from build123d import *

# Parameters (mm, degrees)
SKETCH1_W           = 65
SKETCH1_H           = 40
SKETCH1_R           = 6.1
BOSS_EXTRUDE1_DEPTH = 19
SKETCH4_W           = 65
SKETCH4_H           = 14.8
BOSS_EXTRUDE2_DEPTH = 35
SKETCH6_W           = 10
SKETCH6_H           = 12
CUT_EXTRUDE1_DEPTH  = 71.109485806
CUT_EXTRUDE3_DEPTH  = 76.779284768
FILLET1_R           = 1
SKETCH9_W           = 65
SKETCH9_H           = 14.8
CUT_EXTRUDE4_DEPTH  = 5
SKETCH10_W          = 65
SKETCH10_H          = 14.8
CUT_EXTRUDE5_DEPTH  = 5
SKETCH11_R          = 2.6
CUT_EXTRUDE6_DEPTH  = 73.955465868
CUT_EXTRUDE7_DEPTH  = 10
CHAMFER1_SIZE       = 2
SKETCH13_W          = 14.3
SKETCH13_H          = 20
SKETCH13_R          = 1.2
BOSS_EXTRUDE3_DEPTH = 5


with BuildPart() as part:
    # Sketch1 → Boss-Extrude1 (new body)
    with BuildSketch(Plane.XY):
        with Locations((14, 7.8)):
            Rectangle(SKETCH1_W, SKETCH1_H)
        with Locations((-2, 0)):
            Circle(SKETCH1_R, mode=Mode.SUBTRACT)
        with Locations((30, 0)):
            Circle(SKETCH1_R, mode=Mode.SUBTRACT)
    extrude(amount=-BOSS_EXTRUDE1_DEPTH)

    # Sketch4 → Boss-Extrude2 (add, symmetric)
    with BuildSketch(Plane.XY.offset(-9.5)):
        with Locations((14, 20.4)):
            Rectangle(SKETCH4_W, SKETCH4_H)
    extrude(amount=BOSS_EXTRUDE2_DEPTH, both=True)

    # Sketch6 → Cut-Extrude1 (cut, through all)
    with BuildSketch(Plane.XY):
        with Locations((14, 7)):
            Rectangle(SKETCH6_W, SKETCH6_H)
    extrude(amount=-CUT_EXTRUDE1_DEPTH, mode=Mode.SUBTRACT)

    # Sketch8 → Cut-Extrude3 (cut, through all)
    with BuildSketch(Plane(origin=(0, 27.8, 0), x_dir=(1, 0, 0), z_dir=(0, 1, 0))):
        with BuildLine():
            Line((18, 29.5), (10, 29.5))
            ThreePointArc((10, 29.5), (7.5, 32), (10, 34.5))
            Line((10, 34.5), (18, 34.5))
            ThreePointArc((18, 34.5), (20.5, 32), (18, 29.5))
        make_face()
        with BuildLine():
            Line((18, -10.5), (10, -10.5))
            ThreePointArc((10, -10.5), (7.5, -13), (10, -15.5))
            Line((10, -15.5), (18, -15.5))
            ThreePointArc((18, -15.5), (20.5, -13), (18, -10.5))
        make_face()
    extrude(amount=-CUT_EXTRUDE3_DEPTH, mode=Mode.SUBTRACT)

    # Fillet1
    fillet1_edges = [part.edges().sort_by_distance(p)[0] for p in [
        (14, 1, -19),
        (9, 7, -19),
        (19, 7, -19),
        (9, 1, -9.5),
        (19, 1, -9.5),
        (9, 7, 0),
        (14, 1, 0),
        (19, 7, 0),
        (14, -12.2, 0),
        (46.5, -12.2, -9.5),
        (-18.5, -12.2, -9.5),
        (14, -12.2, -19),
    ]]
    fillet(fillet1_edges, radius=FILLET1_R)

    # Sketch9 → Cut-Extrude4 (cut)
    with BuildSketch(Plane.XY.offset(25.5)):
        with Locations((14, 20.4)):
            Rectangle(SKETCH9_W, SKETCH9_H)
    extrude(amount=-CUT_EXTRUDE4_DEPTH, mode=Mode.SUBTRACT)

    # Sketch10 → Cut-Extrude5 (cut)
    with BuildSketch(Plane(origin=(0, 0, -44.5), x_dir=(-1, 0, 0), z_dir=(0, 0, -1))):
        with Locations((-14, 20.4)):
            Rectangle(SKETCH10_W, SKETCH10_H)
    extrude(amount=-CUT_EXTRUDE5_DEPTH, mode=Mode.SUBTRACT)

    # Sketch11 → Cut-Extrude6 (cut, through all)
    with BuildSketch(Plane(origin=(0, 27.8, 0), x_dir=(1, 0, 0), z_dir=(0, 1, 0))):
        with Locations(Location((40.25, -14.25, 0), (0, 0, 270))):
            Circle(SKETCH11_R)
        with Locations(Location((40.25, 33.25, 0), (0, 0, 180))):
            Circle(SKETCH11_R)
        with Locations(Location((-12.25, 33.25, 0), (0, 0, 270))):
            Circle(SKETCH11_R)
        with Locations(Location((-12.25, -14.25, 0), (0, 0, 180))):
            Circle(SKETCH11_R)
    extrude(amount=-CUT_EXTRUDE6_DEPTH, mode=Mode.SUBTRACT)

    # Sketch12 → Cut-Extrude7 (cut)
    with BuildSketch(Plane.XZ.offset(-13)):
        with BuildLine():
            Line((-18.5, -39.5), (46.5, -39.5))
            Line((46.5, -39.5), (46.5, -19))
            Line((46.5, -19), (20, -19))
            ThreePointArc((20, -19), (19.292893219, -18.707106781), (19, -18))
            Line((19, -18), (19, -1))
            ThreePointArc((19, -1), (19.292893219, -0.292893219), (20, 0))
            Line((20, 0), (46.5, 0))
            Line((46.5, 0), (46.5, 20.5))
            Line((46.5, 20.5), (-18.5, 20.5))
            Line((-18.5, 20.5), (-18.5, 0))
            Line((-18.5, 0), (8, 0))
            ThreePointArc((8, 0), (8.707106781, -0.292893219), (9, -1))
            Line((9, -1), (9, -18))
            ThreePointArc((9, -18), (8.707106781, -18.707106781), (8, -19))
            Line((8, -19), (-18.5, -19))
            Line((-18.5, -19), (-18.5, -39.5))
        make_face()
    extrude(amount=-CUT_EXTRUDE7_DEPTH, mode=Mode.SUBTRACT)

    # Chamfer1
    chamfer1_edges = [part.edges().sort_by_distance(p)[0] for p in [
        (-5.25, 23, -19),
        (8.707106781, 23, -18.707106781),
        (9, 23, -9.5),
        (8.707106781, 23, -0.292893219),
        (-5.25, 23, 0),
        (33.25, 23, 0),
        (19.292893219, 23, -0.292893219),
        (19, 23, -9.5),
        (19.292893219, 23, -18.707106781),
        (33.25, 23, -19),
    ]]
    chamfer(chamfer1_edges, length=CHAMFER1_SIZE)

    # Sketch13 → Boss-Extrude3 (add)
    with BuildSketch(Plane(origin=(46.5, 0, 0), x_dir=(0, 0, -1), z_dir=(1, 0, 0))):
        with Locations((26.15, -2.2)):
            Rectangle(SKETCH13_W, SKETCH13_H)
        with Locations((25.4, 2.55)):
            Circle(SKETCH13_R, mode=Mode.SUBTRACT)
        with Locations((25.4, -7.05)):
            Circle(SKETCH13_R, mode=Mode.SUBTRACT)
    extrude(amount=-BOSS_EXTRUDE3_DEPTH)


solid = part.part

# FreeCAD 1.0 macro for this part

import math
import FreeCAD as App
import Part
import Sketcher


def edges_at(feature, points):
    """Names of the edges that pass closest to the given points."""
    edges = feature.Shape.Edges
    near = lambda p: min(range(len(edges)), key=lambda i: edges[i].distToShape(Part.Vertex(*p))[0])
    return sorted({f"Edge{near(p) + 1}" for p in points})


def add_polygon(sketch, points):
    """Adds a closed chain of lines whose ends are joined by coincident constraints."""
    first, n = sketch.GeometryCount, len(points)
    for a, b in zip(points, points[1:] + points[:1]):
        sketch.addGeometry(Part.LineSegment(App.Vector(*a, 0), App.Vector(*b, 0)), False)
    for i in range(n):
        sketch.addConstraint(Sketcher.Constraint("Coincident", first + i, 2, first + (i + 1) % n, 1))

doc = App.newDocument("Part")
body = doc.addObject("PartDesign::Body", "Body")

# Sketch on XY plane
sketch1 = body.newObject("Sketcher::SketchObject", "Sketch")
sketch1.AttachmentSupport = (doc.getObject("XY_Plane"), [""])
sketch1.MapMode = "FlatFace"
add_polygon(sketch1, [(-18.5, 27.8), (-18.5, -12.2), (46.5, -12.2), (46.5, 27.8)])  # lines 0-3
sketch1.addGeometry(Part.Circle(App.Vector(-2, 0, 0), App.Vector(0, 0, 1), 6.1), False)  # 4
sketch1.addGeometry(Part.Circle(App.Vector(30, 0, 0), App.Vector(0, 0, 1), 6.1), False)  # 5
sketch1.addConstraint(Sketcher.Constraint("Vertical", 0))
sketch1.addConstraint(Sketcher.Constraint("Horizontal", 1))
sketch1.addConstraint(Sketcher.Constraint("Vertical", 2))
sketch1.addConstraint(Sketcher.Constraint("Horizontal", 3))
sketch1.addConstraint(Sketcher.Constraint("Equal", 4, 5))
sketch1.addConstraint(Sketcher.Constraint("PointOnObject", 4, 3, -1))
sketch1.addConstraint(Sketcher.Constraint("PointOnObject", 5, 3, -1))
sketch1.addConstraint(Sketcher.Constraint("Diameter", 4, 12.2))
sketch1.addConstraint(Sketcher.Constraint("DistanceX", 1, 1, 1, 2, 65.0))
sketch1.addConstraint(Sketcher.Constraint("DistanceY", 0, 2, 0, 1, 40.0))
sketch1.addConstraint(Sketcher.Constraint("DistanceX", 4, 3, -1, 1, 2.0))
sketch1.addConstraint(Sketcher.Constraint("DistanceX", -1, 1, 5, 3, 30.0))
sketch1.addConstraint(Sketcher.Constraint("DistanceX", 0, 2, -1, 1, 18.5))
sketch1.addConstraint(Sketcher.Constraint("DistanceY", 0, 2, -1, 1, 12.2))
pad1 = body.newObject("PartDesign::Pad", "Pad")
pad1.Profile = sketch1
pad1.Length = 19
pad1.Reversed = True

# Sketch on XY plane
sketch2 = body.newObject("Sketcher::SketchObject", "Sketch001")
sketch2.AttachmentSupport = (doc.getObject("XY_Plane"), [""])
sketch2.MapMode = "FlatFace"
sketch2.AttachmentOffset = App.Placement(App.Vector(0, 0, -9.5), App.Rotation())
add_polygon(sketch2, [(-18.5, 27.8), (-18.5, 13), (46.5, 13), (46.5, 27.8)])  # lines 0-3
sketch2.addConstraint(Sketcher.Constraint("Vertical", 0))
sketch2.addConstraint(Sketcher.Constraint("Horizontal", 1))
sketch2.addConstraint(Sketcher.Constraint("Vertical", 2))
sketch2.addConstraint(Sketcher.Constraint("Horizontal", 3))
sketch2.addConstraint(Sketcher.Constraint("DistanceX", 1, 1, 1, 2, 65.0))
sketch2.addConstraint(Sketcher.Constraint("DistanceY", 0, 2, 0, 1, 14.8))
sketch2.addConstraint(Sketcher.Constraint("DistanceY", -1, 1, 0, 2, 13.0))
sketch2.addConstraint(Sketcher.Constraint("DistanceX", 0, 2, -1, 1, 18.5))
pad2 = body.newObject("PartDesign::Pad", "Pad001")
pad2.Profile = sketch2
pad2.Length = 70
pad2.Midplane = True

# Sketch on XY plane
sketch3 = body.newObject("Sketcher::SketchObject", "Sketch002")
sketch3.AttachmentSupport = (doc.getObject("XY_Plane"), [""])
sketch3.MapMode = "FlatFace"
add_polygon(sketch3, [(9, 13), (9, 1), (19, 1), (19, 13)])  # lines 0-3
sketch3.addConstraint(Sketcher.Constraint("Vertical", 0))
sketch3.addConstraint(Sketcher.Constraint("Horizontal", 1))
sketch3.addConstraint(Sketcher.Constraint("Vertical", 2))
sketch3.addConstraint(Sketcher.Constraint("Horizontal", 3))
sketch3.addConstraint(Sketcher.Constraint("DistanceX", 1, 1, 1, 2, 10.0))
sketch3.addConstraint(Sketcher.Constraint("DistanceY", 0, 2, 0, 1, 12.0))
sketch3.addConstraint(Sketcher.Constraint("DistanceX", -1, 1, 0, 2, 9.0))
sketch3.addConstraint(Sketcher.Constraint("DistanceY", -1, 1, 0, 2, 1.0))
pocket1 = body.newObject("PartDesign::Pocket", "Pocket")
pocket1.Profile = sketch3
pocket1.Type = "ThroughAll"

# Sketch on XZ plane
sketch4 = body.newObject("Sketcher::SketchObject", "Sketch003")
sketch4.AttachmentSupport = (doc.getObject("XZ_Plane"), [""])
sketch4.MapMode = "FlatFace"
sketch4.AttachmentOffset = App.Placement(App.Vector(0, 0, -27.8), App.Rotation())
sketch4.addGeometry(Part.LineSegment(App.Vector(10, -29.5, 0), App.Vector(18, -29.5, 0)), False)
sketch4.addGeometry(Part.ArcOfCircle(Part.Circle(App.Vector(18, -32, 0), App.Vector(0, 0, 1), 2.5), math.radians(-90), math.radians(90)), False)
sketch4.addGeometry(Part.LineSegment(App.Vector(18, -34.5, 0), App.Vector(10, -34.5, 0)), False)
sketch4.addGeometry(Part.ArcOfCircle(Part.Circle(App.Vector(10, -32, 0), App.Vector(0, 0, 1), 2.5), math.radians(90), math.radians(270)), False)
sketch4.addGeometry(Part.LineSegment(App.Vector(18, 10.5, 0), App.Vector(10, 10.5, 0)), False)
sketch4.addGeometry(Part.ArcOfCircle(Part.Circle(App.Vector(10, 13, 0), App.Vector(0, 0, 1), 2.5), math.radians(90), math.radians(270)), False)
sketch4.addGeometry(Part.LineSegment(App.Vector(10, 15.5, 0), App.Vector(18, 15.5, 0)), False)
sketch4.addGeometry(Part.ArcOfCircle(Part.Circle(App.Vector(18, 13, 0), App.Vector(0, 0, 1), 2.5), math.radians(-90), math.radians(90)), False)
sketch4.addConstraint(Sketcher.Constraint("Tangent", 0, 2, 1, 2))
sketch4.addConstraint(Sketcher.Constraint("Tangent", 1, 1, 2, 1))
sketch4.addConstraint(Sketcher.Constraint("Tangent", 2, 2, 3, 2))
sketch4.addConstraint(Sketcher.Constraint("Tangent", 3, 1, 0, 1))
sketch4.addConstraint(Sketcher.Constraint("Tangent", 4, 2, 5, 2))
sketch4.addConstraint(Sketcher.Constraint("Tangent", 5, 1, 6, 1))
sketch4.addConstraint(Sketcher.Constraint("Tangent", 6, 2, 7, 2))
sketch4.addConstraint(Sketcher.Constraint("Tangent", 7, 1, 4, 1))
sketch4.addConstraint(Sketcher.Constraint("Horizontal", 0))
sketch4.addConstraint(Sketcher.Constraint("Horizontal", 2))
sketch4.addConstraint(Sketcher.Constraint("Horizontal", 4))
sketch4.addConstraint(Sketcher.Constraint("Horizontal", 6))
sketch4.addConstraint(Sketcher.Constraint("Equal", 3, 5))
sketch4.addConstraint(Sketcher.Constraint("Vertical", 3, 3, 5, 3))
sketch4.addConstraint(Sketcher.Constraint("Vertical", 1, 3, 7, 3))
sketch4.addConstraint(Sketcher.Constraint("Radius", 1, 2.5))
sketch4.addConstraint(Sketcher.Constraint("DistanceX", 0, 1, 0, 2, 8.0))
sketch4.addConstraint(Sketcher.Constraint("DistanceX", -1, 1, 1, 3, 18.0))
sketch4.addConstraint(Sketcher.Constraint("DistanceY", 1, 3, -1, 1, 32.0))
sketch4.addConstraint(Sketcher.Constraint("DistanceY", -1, 1, 5, 3, 13.0))
pocket2 = body.newObject("PartDesign::Pocket", "Pocket001")
pocket2.Profile = sketch4
pocket2.Type = "ThroughAll"
pocket2.Reversed = True
doc.recompute()

fillet = body.newObject("PartDesign::Fillet", "Fillet")
fillet.Base = (pocket2, edges_at(pocket2, [
    (14, 1, -19),
    (9, 7, -19),
    (19, 7, -19),
    (9, 1, -9.5),
    (19, 1, -9.5),
    (9, 7, 0),
    (14, 1, 0),
    (19, 7, 0),
    (14, -12.2, 0),
    (46.5, -12.2, -9.5),
    (-18.5, -12.2, -9.5),
    (14, -12.2, -19),
]))
fillet.Radius = 1

# Sketch on XY plane
sketch5 = body.newObject("Sketcher::SketchObject", "Sketch004")
sketch5.AttachmentSupport = (doc.getObject("XY_Plane"), [""])
sketch5.MapMode = "FlatFace"
sketch5.AttachmentOffset = App.Placement(App.Vector(0, 0, 25.5), App.Rotation())
add_polygon(sketch5, [(-18.5, 27.8), (-18.5, 13), (46.5, 13), (46.5, 27.8)])  # lines 0-3
sketch5.addConstraint(Sketcher.Constraint("Vertical", 0))
sketch5.addConstraint(Sketcher.Constraint("Horizontal", 1))
sketch5.addConstraint(Sketcher.Constraint("Vertical", 2))
sketch5.addConstraint(Sketcher.Constraint("Horizontal", 3))
sketch5.addConstraint(Sketcher.Constraint("DistanceX", 1, 1, 1, 2, 65.0))
sketch5.addConstraint(Sketcher.Constraint("DistanceY", 0, 2, 0, 1, 14.8))
sketch5.addConstraint(Sketcher.Constraint("DistanceY", -1, 1, 0, 2, 13.0))
sketch5.addConstraint(Sketcher.Constraint("DistanceX", 0, 2, -1, 1, 18.5))
pocket3 = body.newObject("PartDesign::Pocket", "Pocket002")
pocket3.Profile = sketch5
pocket3.Length = 5

# Sketch on XY plane
sketch6 = body.newObject("Sketcher::SketchObject", "Sketch005")
sketch6.AttachmentSupport = (doc.getObject("XY_Plane"), [""])
sketch6.MapMode = "FlatFace"
sketch6.AttachmentOffset = App.Placement(App.Vector(0, 0, -44.5), App.Rotation())
add_polygon(sketch6, [(46.5, 27.8), (46.5, 13), (-18.5, 13), (-18.5, 27.8)])  # lines 0-3
sketch6.addConstraint(Sketcher.Constraint("Vertical", 0))
sketch6.addConstraint(Sketcher.Constraint("Horizontal", 1))
sketch6.addConstraint(Sketcher.Constraint("Vertical", 2))
sketch6.addConstraint(Sketcher.Constraint("Horizontal", 3))
sketch6.addConstraint(Sketcher.Constraint("DistanceX", 1, 2, 1, 1, 65.0))
sketch6.addConstraint(Sketcher.Constraint("DistanceY", 0, 2, 0, 1, 14.8))
sketch6.addConstraint(Sketcher.Constraint("DistanceY", -1, 1, 0, 2, 13.0))
sketch6.addConstraint(Sketcher.Constraint("DistanceX", -1, 1, 0, 2, 46.5))
pocket4 = body.newObject("PartDesign::Pocket", "Pocket003")
pocket4.Profile = sketch6
pocket4.Length = 5
pocket4.Reversed = True

# Sketch on XZ plane
sketch7 = body.newObject("Sketcher::SketchObject", "Sketch006")
sketch7.AttachmentSupport = (doc.getObject("XZ_Plane"), [""])
sketch7.MapMode = "FlatFace"
sketch7.AttachmentOffset = App.Placement(App.Vector(0, 0, -27.8), App.Rotation())
sketch7.addGeometry(Part.Circle(App.Vector(40.25, 14.25, 0), App.Vector(0, 0, 1), 2.6), False)
sketch7.addGeometry(Part.Circle(App.Vector(40.25, -33.25, 0), App.Vector(0, 0, 1), 2.6), False)
sketch7.addGeometry(Part.Circle(App.Vector(-12.25, -33.25, 0), App.Vector(0, 0, 1), 2.6), False)
sketch7.addGeometry(Part.Circle(App.Vector(-12.25, 14.25, 0), App.Vector(0, 0, 1), 2.6), False)
sketch7.addConstraint(Sketcher.Constraint("Equal", 0, 1))
sketch7.addConstraint(Sketcher.Constraint("Equal", 1, 2))
sketch7.addConstraint(Sketcher.Constraint("Equal", 2, 3))
sketch7.addConstraint(Sketcher.Constraint("Horizontal", 1, 3, 2, 3))
sketch7.addConstraint(Sketcher.Constraint("Horizontal", 0, 3, 3, 3))
sketch7.addConstraint(Sketcher.Constraint("Vertical", 0, 3, 1, 3))
sketch7.addConstraint(Sketcher.Constraint("Vertical", 2, 3, 3, 3))
sketch7.addConstraint(Sketcher.Constraint("Diameter", 0, 5.2))
sketch7.addConstraint(Sketcher.Constraint("DistanceY", 1, 3, 0, 3, 47.5))
sketch7.addConstraint(Sketcher.Constraint("DistanceX", 2, 3, 1, 3, 52.5))
sketch7.addConstraint(Sketcher.Constraint("DistanceX", -1, 1, 0, 3, 40.25))
sketch7.addConstraint(Sketcher.Constraint("DistanceY", -1, 1, 0, 3, 14.25))
pocket5 = body.newObject("PartDesign::Pocket", "Pocket004")
pocket5.Profile = sketch7
pocket5.Type = "ThroughAll"
pocket5.Reversed = True

# Sketch on XZ plane
sketch8 = body.newObject("Sketcher::SketchObject", "Sketch007")
sketch8.AttachmentSupport = (doc.getObject("XZ_Plane"), [""])
sketch8.MapMode = "FlatFace"
sketch8.AttachmentOffset = App.Placement(App.Vector(0, 0, -13), App.Rotation())
sketch8.addGeometry(Part.LineSegment(App.Vector(-18.5, -39.5, 0), App.Vector(46.5, -39.5, 0)), False)
sketch8.addGeometry(Part.LineSegment(App.Vector(46.5, -39.5, 0), App.Vector(46.5, -19, 0)), False)
sketch8.addGeometry(Part.LineSegment(App.Vector(46.5, -19, 0), App.Vector(20, -19, 0)), False)
sketch8.addGeometry(Part.ArcOfCircle(Part.Circle(App.Vector(20, -18, 0), App.Vector(0, 0, 1), 1), math.radians(-180), math.radians(-90)), False)
sketch8.addGeometry(Part.LineSegment(App.Vector(19, -18, 0), App.Vector(19, -1, 0)), False)
sketch8.addGeometry(Part.ArcOfCircle(Part.Circle(App.Vector(20, -1, 0), App.Vector(0, 0, 1), 1), math.radians(90), math.radians(180)), False)
sketch8.addGeometry(Part.LineSegment(App.Vector(20, 0, 0), App.Vector(46.5, 0, 0)), False)
sketch8.addGeometry(Part.LineSegment(App.Vector(46.5, 0, 0), App.Vector(46.5, 20.5, 0)), False)
sketch8.addGeometry(Part.LineSegment(App.Vector(46.5, 20.5, 0), App.Vector(-18.5, 20.5, 0)), False)
sketch8.addGeometry(Part.LineSegment(App.Vector(-18.5, 20.5, 0), App.Vector(-18.5, 0, 0)), False)
sketch8.addGeometry(Part.LineSegment(App.Vector(-18.5, 0, 0), App.Vector(8, 0, 0)), False)
sketch8.addGeometry(Part.ArcOfCircle(Part.Circle(App.Vector(8, -1, 0), App.Vector(0, 0, 1), 1), math.radians(0), math.radians(90)), False)
sketch8.addGeometry(Part.LineSegment(App.Vector(9, -1, 0), App.Vector(9, -18, 0)), False)
sketch8.addGeometry(Part.ArcOfCircle(Part.Circle(App.Vector(8, -18, 0), App.Vector(0, 0, 1), 1), math.radians(-90), math.radians(0)), False)
sketch8.addGeometry(Part.LineSegment(App.Vector(8, -19, 0), App.Vector(-18.5, -19, 0)), False)
sketch8.addGeometry(Part.LineSegment(App.Vector(-18.5, -19, 0), App.Vector(-18.5, -39.5, 0)), False)
sketch8.addConstraint(Sketcher.Constraint("Coincident", 0, 2, 1, 1))
sketch8.addConstraint(Sketcher.Constraint("Coincident", 1, 2, 2, 1))
sketch8.addConstraint(Sketcher.Constraint("Tangent", 2, 2, 3, 2))
sketch8.addConstraint(Sketcher.Constraint("Tangent", 3, 1, 4, 1))
sketch8.addConstraint(Sketcher.Constraint("Tangent", 4, 2, 5, 2))
sketch8.addConstraint(Sketcher.Constraint("Tangent", 5, 1, 6, 1))
sketch8.addConstraint(Sketcher.Constraint("Coincident", 6, 2, 7, 1))
sketch8.addConstraint(Sketcher.Constraint("Coincident", 7, 2, 8, 1))
sketch8.addConstraint(Sketcher.Constraint("Coincident", 8, 2, 9, 1))
sketch8.addConstraint(Sketcher.Constraint("Coincident", 9, 2, 10, 1))
sketch8.addConstraint(Sketcher.Constraint("Tangent", 10, 2, 11, 2))
sketch8.addConstraint(Sketcher.Constraint("Tangent", 11, 1, 12, 1))
sketch8.addConstraint(Sketcher.Constraint("Tangent", 12, 2, 13, 2))
sketch8.addConstraint(Sketcher.Constraint("Tangent", 13, 1, 14, 1))
sketch8.addConstraint(Sketcher.Constraint("Coincident", 14, 2, 15, 1))
sketch8.addConstraint(Sketcher.Constraint("Coincident", 15, 2, 0, 1))
sketch8.addConstraint(Sketcher.Constraint("Horizontal", 0))
sketch8.addConstraint(Sketcher.Constraint("Vertical", 1))
sketch8.addConstraint(Sketcher.Constraint("Horizontal", 2))
sketch8.addConstraint(Sketcher.Constraint("Vertical", 4))
sketch8.addConstraint(Sketcher.Constraint("Horizontal", 6))
sketch8.addConstraint(Sketcher.Constraint("Vertical", 7))
sketch8.addConstraint(Sketcher.Constraint("Horizontal", 8))
sketch8.addConstraint(Sketcher.Constraint("Vertical", 9))
sketch8.addConstraint(Sketcher.Constraint("Horizontal", 10))
sketch8.addConstraint(Sketcher.Constraint("Vertical", 12))
sketch8.addConstraint(Sketcher.Constraint("Horizontal", 14))
sketch8.addConstraint(Sketcher.Constraint("Vertical", 15))
sketch8.addConstraint(Sketcher.Constraint("Equal", 3, 5))
sketch8.addConstraint(Sketcher.Constraint("Equal", 5, 11))
sketch8.addConstraint(Sketcher.Constraint("Equal", 11, 13))
sketch8.addConstraint(Sketcher.Constraint("PointOnObject", 5, 1, -1))
sketch8.addConstraint(Sketcher.Constraint("PointOnObject", 9, 2, -1))
sketch8.addConstraint(Sketcher.Constraint("Horizontal", 3, 3, 13, 3))
sketch8.addConstraint(Sketcher.Constraint("Vertical", 1, 2, 6, 2))
sketch8.addConstraint(Sketcher.Constraint("Vertical", 9, 2, 14, 2))
sketch8.addConstraint(Sketcher.Constraint("Equal", 6, 10))
sketch8.addConstraint(Sketcher.Constraint("Equal", 1, 7))
sketch8.addConstraint(Sketcher.Constraint("Radius", 3, 1.0))
sketch8.addConstraint(Sketcher.Constraint("DistanceX", 0, 1, 0, 2, 65.0))
sketch8.addConstraint(Sketcher.Constraint("DistanceY", 4, 1, 4, 2, 17.0))
sketch8.addConstraint(Sketcher.Constraint("DistanceX", 2, 2, 2, 1, 26.5))
sketch8.addConstraint(Sketcher.Constraint("DistanceY", 1, 1, 1, 2, 20.5))
sketch8.addConstraint(Sketcher.Constraint("DistanceX", -1, 1, 3, 3, 20.0))
pocket6 = body.newObject("PartDesign::Pocket", "Pocket005")
pocket6.Profile = sketch8
pocket6.Length = 10
doc.recompute()

chamfer = body.newObject("PartDesign::Chamfer", "Chamfer")
chamfer.Base = (pocket6, edges_at(pocket6, [
    (-5.25, 23, -19),
    (8.707, 23, -18.707),
    (9, 23, -9.5),
    (8.707, 23, -0.293),
    (-5.25, 23, 0),
    (33.25, 23, 0),
    (19.293, 23, -0.293),
    (19, 23, -9.5),
    (19.293, 23, -18.707),
    (33.25, 23, -19),
]))
chamfer.Size = 2

# Sketch on YZ plane
sketch9 = body.newObject("Sketcher::SketchObject", "Sketch008")
sketch9.AttachmentSupport = (doc.getObject("YZ_Plane"), [""])
sketch9.MapMode = "FlatFace"
sketch9.AttachmentOffset = App.Placement(App.Vector(0, 0, 46.5), App.Rotation())
add_polygon(sketch9, [(7.8, -19), (-12.2, -19), (-12.2, -33.3), (7.8, -33.3)])  # lines 0-3
sketch9.addGeometry(Part.Circle(App.Vector(-7.05, -25.4, 0), App.Vector(0, 0, 1), 1.2), False)  # 4
sketch9.addGeometry(Part.Circle(App.Vector(2.55, -25.4, 0), App.Vector(0, 0, 1), 1.2), False)  # 5
sketch9.addConstraint(Sketcher.Constraint("Horizontal", 0))
sketch9.addConstraint(Sketcher.Constraint("Vertical", 1))
sketch9.addConstraint(Sketcher.Constraint("Horizontal", 2))
sketch9.addConstraint(Sketcher.Constraint("Vertical", 3))
sketch9.addConstraint(Sketcher.Constraint("Equal", 4, 5))
sketch9.addConstraint(Sketcher.Constraint("Horizontal", 4, 3, 5, 3))
sketch9.addConstraint(Sketcher.Constraint("Diameter", 4, 2.4))
sketch9.addConstraint(Sketcher.Constraint("DistanceX", 0, 2, 0, 1, 20.0))
sketch9.addConstraint(Sketcher.Constraint("DistanceY", 1, 2, 1, 1, 14.3))
sketch9.addConstraint(Sketcher.Constraint("DistanceY", 0, 2, -1, 1, 19.0))
sketch9.addConstraint(Sketcher.Constraint("DistanceY", 4, 3, -1, 1, 25.4))
sketch9.addConstraint(Sketcher.Constraint("DistanceX", 0, 2, -1, 1, 12.2))
sketch9.addConstraint(Sketcher.Constraint("DistanceX", 4, 3, 5, 3, 9.6))
sketch9.addConstraint(Sketcher.Constraint("DistanceX", 4, 3, -1, 1, 7.05))
pad3 = body.newObject("PartDesign::Pad", "Pad002")
pad3.Profile = sketch9
pad3.Length = 5
pad3.Reversed = True

doc.recompute()
